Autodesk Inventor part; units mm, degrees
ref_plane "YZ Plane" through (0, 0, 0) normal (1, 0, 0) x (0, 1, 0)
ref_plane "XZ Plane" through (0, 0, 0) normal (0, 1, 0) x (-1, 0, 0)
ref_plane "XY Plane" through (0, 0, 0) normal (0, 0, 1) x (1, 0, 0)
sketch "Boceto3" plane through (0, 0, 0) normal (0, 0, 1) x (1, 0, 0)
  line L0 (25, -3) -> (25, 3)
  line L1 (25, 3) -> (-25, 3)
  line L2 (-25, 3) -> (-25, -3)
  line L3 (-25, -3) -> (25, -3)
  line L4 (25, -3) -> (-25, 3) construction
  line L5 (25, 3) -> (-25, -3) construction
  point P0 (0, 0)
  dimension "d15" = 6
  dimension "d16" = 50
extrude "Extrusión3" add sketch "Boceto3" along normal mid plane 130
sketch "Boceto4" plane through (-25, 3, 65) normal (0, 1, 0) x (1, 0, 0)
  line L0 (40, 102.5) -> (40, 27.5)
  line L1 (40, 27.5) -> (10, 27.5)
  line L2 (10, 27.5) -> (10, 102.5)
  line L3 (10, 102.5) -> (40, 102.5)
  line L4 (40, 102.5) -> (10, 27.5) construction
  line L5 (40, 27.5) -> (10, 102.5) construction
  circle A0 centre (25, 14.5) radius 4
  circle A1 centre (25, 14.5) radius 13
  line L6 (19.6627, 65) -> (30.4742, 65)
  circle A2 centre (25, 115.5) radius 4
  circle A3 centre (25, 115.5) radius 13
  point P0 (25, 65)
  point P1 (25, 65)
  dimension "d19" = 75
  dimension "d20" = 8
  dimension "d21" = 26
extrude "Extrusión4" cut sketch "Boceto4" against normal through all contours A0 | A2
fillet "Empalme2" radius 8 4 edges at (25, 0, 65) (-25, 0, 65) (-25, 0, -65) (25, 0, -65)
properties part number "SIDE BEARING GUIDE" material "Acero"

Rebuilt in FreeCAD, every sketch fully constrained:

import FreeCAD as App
import Part
import Sketcher

V = App.Vector
Q = App.Units.Quantity


def edges_at(feature, points):
    """Names of the edges that pass closest to the given points."""
    edges = feature.Shape.Edges
    near = lambda p: min(range(len(edges)), key=lambda i: edges[i].distToShape(Part.Vertex(*p))[0])
    return sorted({f"Edge{near(p) + 1}" for p in points})


def add_polygon(sketch, points):
    """Adds a closed chain of lines whose ends are joined by coincident constraints."""
    first, n = sketch.GeometryCount, len(points)
    for a, b in zip(points, points[1:] + points[:1]):
        sketch.addGeometry(Part.LineSegment(App.Vector(*a, 0), App.Vector(*b, 0)), False)
    for i in range(n):
        sketch.addConstraint(Sketcher.Constraint("Coincident", first + i, 2, first + (i + 1) % n, 1))

doc = App.newDocument("Part")
params = doc.addObject("Spreadsheet::Sheet", "Params")
for row, (alias, value) in enumerate([
    ("sketch1_width", "50 mm"),
    ("sketch1_height", "6 mm"),
    ("pad1_length", "130 mm"),
    ("sketch2_diameter", "8 mm"),
    ("fillet_radius", "8 mm"),
], start=1):
    params.set(f"A{row}", alias)
    params.set(f"B{row}", "=" + value)
    params.setAlias(f"B{row}", alias)

body = doc.addObject("PartDesign::Body", "Body")

# Sketch on XY plane
sketch1 = body.newObject("Sketcher::SketchObject", "Sketch")
sketch1.AttachmentSupport = (doc.getObject("XY_Plane"), [""])
sketch1.MapMode = "FlatFace"
add_polygon(sketch1, [(-25, -3), (25, -3), (25, 3), (-25, 3)])  # lines 0-3
sketch1.addConstraint(Sketcher.Constraint("Horizontal", 0))
sketch1.addConstraint(Sketcher.Constraint("Vertical", 1))
sketch1.addConstraint(Sketcher.Constraint("Horizontal", 2))
sketch1.addConstraint(Sketcher.Constraint("Vertical", 3))
sketch1.addConstraint(Sketcher.Constraint("Symmetric", 0, 2, 2, 2, -1, 1))
sketch1.addConstraint(Sketcher.Constraint("DistanceX", 0, 1, 0, 2, Q("50 mm")))
sketch1.addConstraint(Sketcher.Constraint("DistanceY", 1, 1, 1, 2, Q("6 mm")))
sketch1.setExpression("Constraints[9]", "Params.sketch1_width")
sketch1.setExpression("Constraints[10]", "Params.sketch1_height")
pad1 = body.newObject("PartDesign::Pad", "Pad")
pad1.Profile = sketch1
pad1.setExpression("Length", "Params.pad1_length")
pad1.Midplane = True

# Sketch on XZ plane
sketch2 = body.newObject("Sketcher::SketchObject", "Sketch001")
sketch2.AttachmentSupport = (doc.getObject("XZ_Plane"), [""])
sketch2.MapMode = "FlatFace"
sketch2.AttachmentOffset = App.Placement(V(0, 0, -3), App.Rotation())
sketch2.addGeometry(Part.Circle(V(0, 50.5, 0), V(0, 0, 1), 4), False)
sketch2.addGeometry(Part.Circle(V(0, -50.5, 0), V(0, 0, 1), 4), False)
sketch2.addConstraint(Sketcher.Constraint("Equal", 0, 1))
sketch2.addConstraint(Sketcher.Constraint("Symmetric", 0, 3, 1, 3, -1, 1))
sketch2.addConstraint(Sketcher.Constraint("PointOnObject", 0, 3, -2))
sketch2.addConstraint(Sketcher.Constraint("Diameter", 0, Q("8 mm")))
sketch2.addConstraint(Sketcher.Constraint("DistanceY", 1, 3, 0, 3, Q("101 mm")))
sketch2.setExpression("Constraints[3]", "Params.sketch2_diameter")
pocket1 = body.newObject("PartDesign::Pocket", "Pocket")
pocket1.Profile = sketch2
pocket1.Type = "ThroughAll"
pocket1.Reversed = True
doc.recompute()

fillet = body.newObject("PartDesign::Fillet", "Fillet")
fillet.Base = (pocket1, edges_at(pocket1, [
    (25, 0, 65),
    (-25, 0, 65),
    (-25, 0, -65),
    (25, 0, -65),
]))
fillet.setExpression("Radius", "Params.fillet_radius")

doc.recompute()
